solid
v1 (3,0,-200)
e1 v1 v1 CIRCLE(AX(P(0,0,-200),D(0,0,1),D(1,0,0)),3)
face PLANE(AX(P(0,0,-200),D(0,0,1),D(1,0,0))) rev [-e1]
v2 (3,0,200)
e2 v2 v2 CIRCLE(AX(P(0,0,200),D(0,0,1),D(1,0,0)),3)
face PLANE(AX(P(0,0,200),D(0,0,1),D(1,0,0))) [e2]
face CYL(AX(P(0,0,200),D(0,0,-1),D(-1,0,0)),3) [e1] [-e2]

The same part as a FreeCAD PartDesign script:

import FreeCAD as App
import Part
import Sketcher
from FreeCAD import Vector
Q = App.Units.Quantity

doc = App.newDocument("Part")
body = doc.addObject("PartDesign::Body", "Body")

sketch1 = body.newObject("Sketcher::SketchObject", "Sketch")
sketch1.AttachmentSupport = (doc.getObject("XY_Plane"), [""])
sketch1.MapMode = "FlatFace"
sketch1.addGeometry(Part.Circle(Vector(0, 0, 0), Vector(0, 0, 1), 3), False)
sketch1.addConstraint([
    Sketcher.Constraint("Coincident", 0, 3, -1, 1),
    Sketcher.Constraint("Diameter", 0, Q("6 mm")),
])
pad1 = body.newObject("PartDesign::Pad", "Pad")
pad1.Profile = sketch1
pad1.Length = 400
pad1.Midplane = True

doc.recompute()
